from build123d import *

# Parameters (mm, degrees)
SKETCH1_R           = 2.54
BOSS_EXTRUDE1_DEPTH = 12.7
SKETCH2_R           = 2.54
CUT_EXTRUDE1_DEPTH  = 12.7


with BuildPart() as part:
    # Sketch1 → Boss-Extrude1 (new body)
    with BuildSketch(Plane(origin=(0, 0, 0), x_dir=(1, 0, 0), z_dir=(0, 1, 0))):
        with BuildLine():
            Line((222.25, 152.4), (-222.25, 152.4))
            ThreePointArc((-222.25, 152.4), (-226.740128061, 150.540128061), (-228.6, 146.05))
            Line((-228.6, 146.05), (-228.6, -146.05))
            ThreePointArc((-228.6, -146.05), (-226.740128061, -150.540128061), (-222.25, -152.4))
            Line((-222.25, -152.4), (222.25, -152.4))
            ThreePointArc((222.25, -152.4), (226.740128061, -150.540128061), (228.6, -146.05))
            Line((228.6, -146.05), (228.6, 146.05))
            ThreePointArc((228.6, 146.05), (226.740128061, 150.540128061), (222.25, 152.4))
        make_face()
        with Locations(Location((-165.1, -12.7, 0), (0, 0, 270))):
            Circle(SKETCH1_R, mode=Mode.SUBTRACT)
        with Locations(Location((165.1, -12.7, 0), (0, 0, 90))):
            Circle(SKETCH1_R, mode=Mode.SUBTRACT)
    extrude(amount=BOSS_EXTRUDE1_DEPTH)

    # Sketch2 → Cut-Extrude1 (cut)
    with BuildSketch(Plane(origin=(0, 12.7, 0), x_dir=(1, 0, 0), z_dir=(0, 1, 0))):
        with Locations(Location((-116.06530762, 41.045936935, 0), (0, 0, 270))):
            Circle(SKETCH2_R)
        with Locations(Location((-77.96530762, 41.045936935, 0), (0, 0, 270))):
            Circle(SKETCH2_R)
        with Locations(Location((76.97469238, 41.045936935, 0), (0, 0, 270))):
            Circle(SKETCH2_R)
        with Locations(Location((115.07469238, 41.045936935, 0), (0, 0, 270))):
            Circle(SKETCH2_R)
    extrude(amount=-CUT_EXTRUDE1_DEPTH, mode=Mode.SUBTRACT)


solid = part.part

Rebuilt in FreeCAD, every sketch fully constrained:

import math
import FreeCAD as App
import Part
import Sketcher

V = App.Vector
Q = App.Units.Quantity

doc = App.newDocument("Part")
body = doc.addObject("PartDesign::Body", "Body")

# Sketch on XZ plane
sketch1 = body.newObject("Sketcher::SketchObject", "Sketch")
sketch1.AttachmentSupport = (doc.getObject("XZ_Plane"), [""])
sketch1.MapMode = "FlatFace"
sketch1.addGeometry([
    Part.LineSegment(V(222.2, -152.4, 0), V(-222.2, -152.4, 0)),  # 0
    Part.ArcOfCircle(Part.Circle(V(-222.3, -146.1, 0), V(0, 0, 1), 6.3), math.radians(180), math.radians(270)),  # 1
    Part.LineSegment(V(-228.6, -146.1, 0), V(-228.6, 146.1, 0)),  # 2
    Part.ArcOfCircle(Part.Circle(V(-222.3, 146.1, 0), V(0, 0, 1), 6.3), math.radians(90), math.radians(180)),  # 3
    Part.LineSegment(V(-222.2, 152.4, 0), V(222.2, 152.4, 0)),  # 4
    Part.ArcOfCircle(Part.Circle(V(222.3, 146.1, 0), V(0, 0, 1), 6.3), math.radians(0), math.radians(90)),  # 5
    Part.LineSegment(V(228.6, 146.1, 0), V(228.6, -146.1, 0)),  # 6
    Part.ArcOfCircle(Part.Circle(V(222.3, -146.1, 0), V(0, 0, 1), 6.3), math.radians(-90), math.radians(0)),  # 7
    Part.Circle(V(-165.1, 12.7, 0), V(0, 0, 1), 2.5),  # 8
    Part.Circle(V(165.1, 12.7, 0), V(0, 0, 1), 2.5),  # 9
], False)
sketch1.addConstraint([
    Sketcher.Constraint("Tangent", 0, 2, 1, 2),
    Sketcher.Constraint("Tangent", 1, 1, 2, 1),
    Sketcher.Constraint("Tangent", 2, 2, 3, 2),
    Sketcher.Constraint("Tangent", 3, 1, 4, 1),
    Sketcher.Constraint("Tangent", 4, 2, 5, 2),
    Sketcher.Constraint("Tangent", 5, 1, 6, 1),
    Sketcher.Constraint("Tangent", 6, 2, 7, 2),
    Sketcher.Constraint("Tangent", 7, 1, 0, 1),
    Sketcher.Constraint("Horizontal", 0),
    Sketcher.Constraint("Vertical", 2),
    Sketcher.Constraint("Horizontal", 4),
    Sketcher.Constraint("Vertical", 6),
    Sketcher.Constraint("Equal", 1, 3),
    Sketcher.Constraint("Equal", 3, 5),
    Sketcher.Constraint("Equal", 5, 7),
    Sketcher.Constraint("Equal", 8, 9),
    Sketcher.Constraint("Symmetric", 1, 3, 5, 3, -1, 1),
    Sketcher.Constraint("Symmetric", 8, 3, 9, 3, -2),
    Sketcher.Constraint("Diameter", 8, Q("0.2 in")),
    Sketcher.Constraint("Radius", 1, Q("0.25 in")),
    Sketcher.Constraint("DistanceX", 0, 2, 0, 1, Q("17.5 in")),
    Sketcher.Constraint("DistanceY", 2, 1, 2, 2, Q("11.5 in")),
    Sketcher.Constraint("DistanceX", 8, 3, 9, 3, Q("13 in")),
    Sketcher.Constraint("DistanceY", -1, 1, 8, 3, Q("0.5 in")),
])
pad1 = body.newObject("PartDesign::Pad", "Pad")
pad1.Profile = sketch1
pad1.Length = Q("0.5 in")
pad1.Reversed = True

# Sketch on XZ plane
sketch2 = body.newObject("Sketcher::SketchObject", "Sketch001")
sketch2.AttachmentSupport = (doc.getObject("XZ_Plane"), [""])
sketch2.MapMode = "FlatFace"
sketch2.AttachmentOffset = App.Placement(V(0, 0, -0.5 * 25.4), App.Rotation())
sketch2.addGeometry([
    Part.Circle(V(-116.1, -41, 0), V(0, 0, 1), 2.5),
    Part.Circle(V(-78, -41, 0), V(0, 0, 1), 2.5),
    Part.Circle(V(77, -41, 0), V(0, 0, 1), 2.5),
    Part.Circle(V(115.1, -41, 0), V(0, 0, 1), 2.5),
], False)
sketch2.addConstraint([
    Sketcher.Constraint("Equal", 0, 1),
    Sketcher.Constraint("Equal", 1, 2),
    Sketcher.Constraint("Equal", 2, 3),
    Sketcher.Constraint("Horizontal", 0, 3, 1, 3),
    Sketcher.Constraint("Horizontal", 1, 3, 2, 3),
    Sketcher.Constraint("Horizontal", 2, 3, 3, 3),
    Sketcher.Constraint("Diameter", 0, Q("0.2 in")),
    Sketcher.Constraint("DistanceX", 0, 3, 1, 3, Q("1.5 in")),
    Sketcher.Constraint("DistanceX", 1, 3, 2, 3, Q("6.1 in")),
    Sketcher.Constraint("DistanceX", 2, 3, 3, 3, Q("1.5 in")),
    Sketcher.Constraint("DistanceX", 0, 3, -1, 1, 116.065308),
    Sketcher.Constraint("DistanceY", 0, 3, -1, 1, 41.045937),
])
pocket1 = body.newObject("PartDesign::Pocket", "Pocket")
pocket1.Profile = sketch2
pocket1.Length = Q("0.5 in")
pocket1.Reversed = True

doc.recompute()
